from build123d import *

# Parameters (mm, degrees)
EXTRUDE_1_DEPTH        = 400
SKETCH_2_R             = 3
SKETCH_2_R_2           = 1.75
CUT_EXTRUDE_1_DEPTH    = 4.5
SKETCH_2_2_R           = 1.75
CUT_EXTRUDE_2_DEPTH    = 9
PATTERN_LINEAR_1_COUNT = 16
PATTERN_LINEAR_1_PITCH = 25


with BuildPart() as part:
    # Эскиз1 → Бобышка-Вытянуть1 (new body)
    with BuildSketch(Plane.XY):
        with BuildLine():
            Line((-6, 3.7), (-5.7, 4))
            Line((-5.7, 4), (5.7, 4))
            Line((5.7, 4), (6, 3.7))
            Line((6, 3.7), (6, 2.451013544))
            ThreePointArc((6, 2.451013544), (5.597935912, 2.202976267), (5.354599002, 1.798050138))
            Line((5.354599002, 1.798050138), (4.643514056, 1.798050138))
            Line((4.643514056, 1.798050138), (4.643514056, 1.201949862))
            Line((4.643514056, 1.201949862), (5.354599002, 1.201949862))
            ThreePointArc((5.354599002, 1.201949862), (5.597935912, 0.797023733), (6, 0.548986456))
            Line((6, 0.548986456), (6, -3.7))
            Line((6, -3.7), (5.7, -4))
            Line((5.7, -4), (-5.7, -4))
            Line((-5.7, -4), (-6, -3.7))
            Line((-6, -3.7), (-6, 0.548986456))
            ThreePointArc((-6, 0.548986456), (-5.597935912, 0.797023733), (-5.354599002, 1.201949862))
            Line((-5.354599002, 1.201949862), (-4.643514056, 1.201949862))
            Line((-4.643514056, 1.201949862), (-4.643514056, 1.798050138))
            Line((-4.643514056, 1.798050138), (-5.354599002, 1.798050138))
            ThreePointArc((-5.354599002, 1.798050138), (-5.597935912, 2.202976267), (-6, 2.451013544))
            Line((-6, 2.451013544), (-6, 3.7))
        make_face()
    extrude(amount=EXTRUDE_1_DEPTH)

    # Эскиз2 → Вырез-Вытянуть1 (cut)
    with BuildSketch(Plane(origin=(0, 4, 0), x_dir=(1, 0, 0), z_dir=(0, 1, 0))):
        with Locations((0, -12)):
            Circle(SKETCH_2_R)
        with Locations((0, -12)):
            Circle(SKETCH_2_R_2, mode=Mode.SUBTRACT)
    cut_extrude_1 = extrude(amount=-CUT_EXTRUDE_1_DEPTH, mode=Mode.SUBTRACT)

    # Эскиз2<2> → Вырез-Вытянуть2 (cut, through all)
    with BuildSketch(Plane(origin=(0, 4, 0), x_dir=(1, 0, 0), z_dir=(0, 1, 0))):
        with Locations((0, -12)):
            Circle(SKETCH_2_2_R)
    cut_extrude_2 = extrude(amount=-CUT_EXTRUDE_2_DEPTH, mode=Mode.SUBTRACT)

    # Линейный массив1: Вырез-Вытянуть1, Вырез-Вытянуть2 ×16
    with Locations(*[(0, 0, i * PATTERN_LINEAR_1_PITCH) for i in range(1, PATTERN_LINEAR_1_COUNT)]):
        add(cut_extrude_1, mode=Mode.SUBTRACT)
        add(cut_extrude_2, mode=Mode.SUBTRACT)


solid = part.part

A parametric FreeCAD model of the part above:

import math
import FreeCAD as App
import Part
import Sketcher
from FreeCAD import Vector
Q = App.Units.Quantity

doc = App.newDocument("Part")
params = doc.addObject("Spreadsheet::Sheet", "Params")
for row, (alias, value) in enumerate([
    ("sketch1_radius", "1 mm"),
    ("sketch1_width", "11.4 mm"),
    ("pad1_length", "400 mm"),
    ("sketch2_diameter", "6 mm"),
    ("sketch2_diameter2", "3.5 mm"),
    ("pocket1_length", "4.5 mm"),
    ("sketch3_diameter", "3.5 mm"),
    ("linearpattern_pitch", "25 mm"),
], start=1):
    params.set(f"A{row}", alias)
    params.set(f"B{row}", "=" + value)
    params.setAlias(f"B{row}", alias)

body = doc.addObject("PartDesign::Body", "Body")

sketch1 = body.newObject("Sketcher::SketchObject", "Sketch")
sketch1.AttachmentSupport = (doc.getObject("XY_Plane"), [""])
sketch1.MapMode = "FlatFace"
sketch1.addGeometry([
    Part.LineSegment(Vector(-5.7, 4, 0), Vector(-6, 3.7, 0)),
    Part.LineSegment(Vector(-6, 3.7, 0), Vector(-6, 2.451014, 0)),
    Part.ArcOfCircle(Part.Circle(Vector(-6.309149, 1.5, 0), Vector(0, 0, 1), 1), math.radians(17.340528), math.radians(71.992034)),
    Part.LineSegment(Vector(-5.354599, 1.79805, 0), Vector(-4.643514, 1.79805, 0)),
    Part.LineSegment(Vector(-4.643514, 1.79805, 0), Vector(-4.643514, 1.20195, 0)),
    Part.LineSegment(Vector(-4.643514, 1.20195, 0), Vector(-5.354599, 1.20195, 0)),
    Part.ArcOfCircle(Part.Circle(Vector(-6.309149, 1.5, 0), Vector(0, 0, 1), 1), math.radians(-71.992034), math.radians(-17.340528)),
    Part.LineSegment(Vector(-6, 0.548986, 0), Vector(-6, -3.7, 0)),
    Part.LineSegment(Vector(-6, -3.7, 0), Vector(-5.7, -4, 0)),
    Part.LineSegment(Vector(-5.7, -4, 0), Vector(5.7, -4, 0)),
    Part.LineSegment(Vector(5.7, -4, 0), Vector(6, -3.7, 0)),
    Part.LineSegment(Vector(6, -3.7, 0), Vector(6, 0.548986, 0)),
    Part.ArcOfCircle(Part.Circle(Vector(6.309149, 1.5, 0), Vector(0, 0, 1), 1), math.radians(-162.659472), math.radians(-108.007966)),
    Part.LineSegment(Vector(5.354599, 1.20195, 0), Vector(4.643514, 1.20195, 0)),
    Part.LineSegment(Vector(4.643514, 1.20195, 0), Vector(4.643514, 1.79805, 0)),
    Part.LineSegment(Vector(4.643514, 1.79805, 0), Vector(5.354599, 1.79805, 0)),
    Part.ArcOfCircle(Part.Circle(Vector(6.309149, 1.5, 0), Vector(0, 0, 1), 1), math.radians(108.007966), math.radians(162.659472)),
    Part.LineSegment(Vector(6, 2.451014, 0), Vector(6, 3.7, 0)),
    Part.LineSegment(Vector(6, 3.7, 0), Vector(5.7, 4, 0)),
    Part.LineSegment(Vector(5.7, 4, 0), Vector(-5.7, 4, 0)),
], False)
sketch1.addConstraint([
    Sketcher.Constraint("Coincident", 0, 2, 1, 1),
    Sketcher.Constraint("Coincident", 1, 2, 2, 2),
    Sketcher.Constraint("Coincident", 2, 1, 3, 1),
    Sketcher.Constraint("Coincident", 3, 2, 4, 1),
    Sketcher.Constraint("Coincident", 4, 2, 5, 1),
    Sketcher.Constraint("Coincident", 5, 2, 6, 2),
    Sketcher.Constraint("Coincident", 6, 1, 7, 1),
    Sketcher.Constraint("Coincident", 7, 2, 8, 1),
    Sketcher.Constraint("Coincident", 8, 2, 9, 1),
    Sketcher.Constraint("Coincident", 9, 2, 10, 1),
    Sketcher.Constraint("Coincident", 10, 2, 11, 1),
    Sketcher.Constraint("Coincident", 11, 2, 12, 2),
    Sketcher.Constraint("Coincident", 12, 1, 13, 1),
    Sketcher.Constraint("Coincident", 13, 2, 14, 1),
    Sketcher.Constraint("Coincident", 14, 2, 15, 1),
    Sketcher.Constraint("Coincident", 15, 2, 16, 2),
    Sketcher.Constraint("Coincident", 16, 1, 17, 1),
    Sketcher.Constraint("Coincident", 17, 2, 18, 1),
    Sketcher.Constraint("Coincident", 18, 2, 19, 1),
    Sketcher.Constraint("Coincident", 19, 2, 0, 1),
    Sketcher.Constraint("Vertical", 1),
    Sketcher.Constraint("Horizontal", 3),
    Sketcher.Constraint("Vertical", 4),
    Sketcher.Constraint("Horizontal", 5),
    Sketcher.Constraint("Vertical", 7),
    Sketcher.Constraint("Horizontal", 9),
    Sketcher.Constraint("Vertical", 11),
    Sketcher.Constraint("Horizontal", 13),
    Sketcher.Constraint("Vertical", 14),
    Sketcher.Constraint("Horizontal", 15),
    Sketcher.Constraint("Vertical", 17),
    Sketcher.Constraint("Horizontal", 19),
    Sketcher.Constraint("Coincident", 6, 3, 2, 3),
    Sketcher.Constraint("Coincident", 16, 3, 12, 3),
    Sketcher.Constraint("Equal", 2, 6),
    Sketcher.Constraint("Equal", 6, 12),
    Sketcher.Constraint("Equal", 12, 16),
    Sketcher.Constraint("Symmetric", 0, 2, 10, 2, -1, 1),
    Sketcher.Constraint("Symmetric", 7, 2, 17, 2, -1, 1),
    Sketcher.Constraint("Symmetric", 8, 2, 18, 2, -1, 1),
    Sketcher.Constraint("Symmetric", 2, 3, 12, 3, -2),
    Sketcher.Constraint("Symmetric", 7, 2, 10, 2, -2),
    Sketcher.Constraint("Symmetric", 4, 2, 13, 2, -2),
    Sketcher.Constraint("Perpendicular", 0, 8),
    Sketcher.Constraint("Perpendicular", 8, 10),
    Sketcher.Constraint("Horizontal", 3, 2, 14, 2),
    Sketcher.Constraint("Vertical", 2, 1, 5, 2),
    Sketcher.Constraint("Vertical", 9, 2, 18, 2),
    Sketcher.Constraint("Radius", 2, Q("1 mm")),
    Sketcher.Constraint("DistanceX", 9, 1, 9, 2, Q("11.4 mm")),
    Sketcher.Constraint("DistanceX", 0, 2, -1, 1, Q("6 mm")),
    Sketcher.Constraint("DistanceY", 8, 2, -1, 1, Q("4 mm")),
    Sketcher.Constraint("DistanceY", -1, 1, 2, 3, Q("1.5 mm")),
    Sketcher.Constraint("DistanceY", 4, 2, 4, 1, Q("0.5961 mm")),
    Sketcher.Constraint("DistanceX", 2, 1, -1, 1, Q("5.354599 mm")),
    Sketcher.Constraint("DistanceX", 3, 1, 3, 2, Q("0.711085 mm")),
])
sketch1.setExpression("Constraints[48]", "Params.sketch1_radius")
sketch1.setExpression("Constraints[49]", "Params.sketch1_width")
pad1 = body.newObject("PartDesign::Pad", "Pad")
pad1.Profile = sketch1
pad1.setExpression("Length", "Params.pad1_length")

sketch2 = body.newObject("Sketcher::SketchObject", "Sketch001")
sketch2.AttachmentSupport = (doc.getObject("XZ_Plane"), [""])
sketch2.MapMode = "FlatFace"
sketch2.AttachmentOffset = App.Placement(Vector(0, 0, -4), App.Rotation())
sketch2.addGeometry([
    Part.Circle(Vector(0, 12, 0), Vector(0, 0, 1), 3),
    Part.Circle(Vector(0, 12, 0), Vector(0, 0, 1), 1.75),
], False)
sketch2.addConstraint([
    Sketcher.Constraint("Coincident", 1, 3, 0, 3),
    Sketcher.Constraint("PointOnObject", 0, 3, -2),
    Sketcher.Constraint("Diameter", 0, Q("6 mm")),
    Sketcher.Constraint("Diameter", 1, Q("3.5 mm")),
    Sketcher.Constraint("DistanceY", -1, 1, 0, 3, Q("12 mm")),
])
sketch2.setExpression("Constraints[2]", "Params.sketch2_diameter")
sketch2.setExpression("Constraints[3]", "Params.sketch2_diameter2")
pocket1 = body.newObject("PartDesign::Pocket", "Pocket")
pocket1.Profile = sketch2
pocket1.setExpression("Length", "Params.pocket1_length")
pocket1.Reversed = True

sketch3 = body.newObject("Sketcher::SketchObject", "Sketch002")
sketch3.AttachmentSupport = (doc.getObject("XZ_Plane"), [""])
sketch3.MapMode = "FlatFace"
sketch3.AttachmentOffset = App.Placement(Vector(0, 0, -4), App.Rotation())
sketch3.addGeometry(Part.Circle(Vector(0, 12, 0), Vector(0, 0, 1), 1.75), False)
sketch3.addConstraint([
    Sketcher.Constraint("PointOnObject", 0, 3, -2),
    Sketcher.Constraint("Diameter", 0, Q("3.5 mm")),
    Sketcher.Constraint("DistanceY", -1, 1, 0, 3, Q("12 mm")),
])
sketch3.setExpression("Constraints[1]", "Params.sketch3_diameter")
pocket2 = body.newObject("PartDesign::Pocket", "Pocket001")
pocket2.Profile = sketch3
pocket2.Type = "ThroughAll"
pocket2.Reversed = True
doc.recompute()

linearpattern = body.newObject("PartDesign::LinearPattern", "LinearPattern")
linearpattern.Originals = [pocket1, pocket2]
linearpattern.Direction = (doc.getObject("Z_Axis"), [""])
linearpattern.Mode = "offset"
linearpattern.setExpression("Offset", "Params.linearpattern_pitch")
linearpattern.Occurrences = 16
body.Tip = linearpattern

doc.recompute()
